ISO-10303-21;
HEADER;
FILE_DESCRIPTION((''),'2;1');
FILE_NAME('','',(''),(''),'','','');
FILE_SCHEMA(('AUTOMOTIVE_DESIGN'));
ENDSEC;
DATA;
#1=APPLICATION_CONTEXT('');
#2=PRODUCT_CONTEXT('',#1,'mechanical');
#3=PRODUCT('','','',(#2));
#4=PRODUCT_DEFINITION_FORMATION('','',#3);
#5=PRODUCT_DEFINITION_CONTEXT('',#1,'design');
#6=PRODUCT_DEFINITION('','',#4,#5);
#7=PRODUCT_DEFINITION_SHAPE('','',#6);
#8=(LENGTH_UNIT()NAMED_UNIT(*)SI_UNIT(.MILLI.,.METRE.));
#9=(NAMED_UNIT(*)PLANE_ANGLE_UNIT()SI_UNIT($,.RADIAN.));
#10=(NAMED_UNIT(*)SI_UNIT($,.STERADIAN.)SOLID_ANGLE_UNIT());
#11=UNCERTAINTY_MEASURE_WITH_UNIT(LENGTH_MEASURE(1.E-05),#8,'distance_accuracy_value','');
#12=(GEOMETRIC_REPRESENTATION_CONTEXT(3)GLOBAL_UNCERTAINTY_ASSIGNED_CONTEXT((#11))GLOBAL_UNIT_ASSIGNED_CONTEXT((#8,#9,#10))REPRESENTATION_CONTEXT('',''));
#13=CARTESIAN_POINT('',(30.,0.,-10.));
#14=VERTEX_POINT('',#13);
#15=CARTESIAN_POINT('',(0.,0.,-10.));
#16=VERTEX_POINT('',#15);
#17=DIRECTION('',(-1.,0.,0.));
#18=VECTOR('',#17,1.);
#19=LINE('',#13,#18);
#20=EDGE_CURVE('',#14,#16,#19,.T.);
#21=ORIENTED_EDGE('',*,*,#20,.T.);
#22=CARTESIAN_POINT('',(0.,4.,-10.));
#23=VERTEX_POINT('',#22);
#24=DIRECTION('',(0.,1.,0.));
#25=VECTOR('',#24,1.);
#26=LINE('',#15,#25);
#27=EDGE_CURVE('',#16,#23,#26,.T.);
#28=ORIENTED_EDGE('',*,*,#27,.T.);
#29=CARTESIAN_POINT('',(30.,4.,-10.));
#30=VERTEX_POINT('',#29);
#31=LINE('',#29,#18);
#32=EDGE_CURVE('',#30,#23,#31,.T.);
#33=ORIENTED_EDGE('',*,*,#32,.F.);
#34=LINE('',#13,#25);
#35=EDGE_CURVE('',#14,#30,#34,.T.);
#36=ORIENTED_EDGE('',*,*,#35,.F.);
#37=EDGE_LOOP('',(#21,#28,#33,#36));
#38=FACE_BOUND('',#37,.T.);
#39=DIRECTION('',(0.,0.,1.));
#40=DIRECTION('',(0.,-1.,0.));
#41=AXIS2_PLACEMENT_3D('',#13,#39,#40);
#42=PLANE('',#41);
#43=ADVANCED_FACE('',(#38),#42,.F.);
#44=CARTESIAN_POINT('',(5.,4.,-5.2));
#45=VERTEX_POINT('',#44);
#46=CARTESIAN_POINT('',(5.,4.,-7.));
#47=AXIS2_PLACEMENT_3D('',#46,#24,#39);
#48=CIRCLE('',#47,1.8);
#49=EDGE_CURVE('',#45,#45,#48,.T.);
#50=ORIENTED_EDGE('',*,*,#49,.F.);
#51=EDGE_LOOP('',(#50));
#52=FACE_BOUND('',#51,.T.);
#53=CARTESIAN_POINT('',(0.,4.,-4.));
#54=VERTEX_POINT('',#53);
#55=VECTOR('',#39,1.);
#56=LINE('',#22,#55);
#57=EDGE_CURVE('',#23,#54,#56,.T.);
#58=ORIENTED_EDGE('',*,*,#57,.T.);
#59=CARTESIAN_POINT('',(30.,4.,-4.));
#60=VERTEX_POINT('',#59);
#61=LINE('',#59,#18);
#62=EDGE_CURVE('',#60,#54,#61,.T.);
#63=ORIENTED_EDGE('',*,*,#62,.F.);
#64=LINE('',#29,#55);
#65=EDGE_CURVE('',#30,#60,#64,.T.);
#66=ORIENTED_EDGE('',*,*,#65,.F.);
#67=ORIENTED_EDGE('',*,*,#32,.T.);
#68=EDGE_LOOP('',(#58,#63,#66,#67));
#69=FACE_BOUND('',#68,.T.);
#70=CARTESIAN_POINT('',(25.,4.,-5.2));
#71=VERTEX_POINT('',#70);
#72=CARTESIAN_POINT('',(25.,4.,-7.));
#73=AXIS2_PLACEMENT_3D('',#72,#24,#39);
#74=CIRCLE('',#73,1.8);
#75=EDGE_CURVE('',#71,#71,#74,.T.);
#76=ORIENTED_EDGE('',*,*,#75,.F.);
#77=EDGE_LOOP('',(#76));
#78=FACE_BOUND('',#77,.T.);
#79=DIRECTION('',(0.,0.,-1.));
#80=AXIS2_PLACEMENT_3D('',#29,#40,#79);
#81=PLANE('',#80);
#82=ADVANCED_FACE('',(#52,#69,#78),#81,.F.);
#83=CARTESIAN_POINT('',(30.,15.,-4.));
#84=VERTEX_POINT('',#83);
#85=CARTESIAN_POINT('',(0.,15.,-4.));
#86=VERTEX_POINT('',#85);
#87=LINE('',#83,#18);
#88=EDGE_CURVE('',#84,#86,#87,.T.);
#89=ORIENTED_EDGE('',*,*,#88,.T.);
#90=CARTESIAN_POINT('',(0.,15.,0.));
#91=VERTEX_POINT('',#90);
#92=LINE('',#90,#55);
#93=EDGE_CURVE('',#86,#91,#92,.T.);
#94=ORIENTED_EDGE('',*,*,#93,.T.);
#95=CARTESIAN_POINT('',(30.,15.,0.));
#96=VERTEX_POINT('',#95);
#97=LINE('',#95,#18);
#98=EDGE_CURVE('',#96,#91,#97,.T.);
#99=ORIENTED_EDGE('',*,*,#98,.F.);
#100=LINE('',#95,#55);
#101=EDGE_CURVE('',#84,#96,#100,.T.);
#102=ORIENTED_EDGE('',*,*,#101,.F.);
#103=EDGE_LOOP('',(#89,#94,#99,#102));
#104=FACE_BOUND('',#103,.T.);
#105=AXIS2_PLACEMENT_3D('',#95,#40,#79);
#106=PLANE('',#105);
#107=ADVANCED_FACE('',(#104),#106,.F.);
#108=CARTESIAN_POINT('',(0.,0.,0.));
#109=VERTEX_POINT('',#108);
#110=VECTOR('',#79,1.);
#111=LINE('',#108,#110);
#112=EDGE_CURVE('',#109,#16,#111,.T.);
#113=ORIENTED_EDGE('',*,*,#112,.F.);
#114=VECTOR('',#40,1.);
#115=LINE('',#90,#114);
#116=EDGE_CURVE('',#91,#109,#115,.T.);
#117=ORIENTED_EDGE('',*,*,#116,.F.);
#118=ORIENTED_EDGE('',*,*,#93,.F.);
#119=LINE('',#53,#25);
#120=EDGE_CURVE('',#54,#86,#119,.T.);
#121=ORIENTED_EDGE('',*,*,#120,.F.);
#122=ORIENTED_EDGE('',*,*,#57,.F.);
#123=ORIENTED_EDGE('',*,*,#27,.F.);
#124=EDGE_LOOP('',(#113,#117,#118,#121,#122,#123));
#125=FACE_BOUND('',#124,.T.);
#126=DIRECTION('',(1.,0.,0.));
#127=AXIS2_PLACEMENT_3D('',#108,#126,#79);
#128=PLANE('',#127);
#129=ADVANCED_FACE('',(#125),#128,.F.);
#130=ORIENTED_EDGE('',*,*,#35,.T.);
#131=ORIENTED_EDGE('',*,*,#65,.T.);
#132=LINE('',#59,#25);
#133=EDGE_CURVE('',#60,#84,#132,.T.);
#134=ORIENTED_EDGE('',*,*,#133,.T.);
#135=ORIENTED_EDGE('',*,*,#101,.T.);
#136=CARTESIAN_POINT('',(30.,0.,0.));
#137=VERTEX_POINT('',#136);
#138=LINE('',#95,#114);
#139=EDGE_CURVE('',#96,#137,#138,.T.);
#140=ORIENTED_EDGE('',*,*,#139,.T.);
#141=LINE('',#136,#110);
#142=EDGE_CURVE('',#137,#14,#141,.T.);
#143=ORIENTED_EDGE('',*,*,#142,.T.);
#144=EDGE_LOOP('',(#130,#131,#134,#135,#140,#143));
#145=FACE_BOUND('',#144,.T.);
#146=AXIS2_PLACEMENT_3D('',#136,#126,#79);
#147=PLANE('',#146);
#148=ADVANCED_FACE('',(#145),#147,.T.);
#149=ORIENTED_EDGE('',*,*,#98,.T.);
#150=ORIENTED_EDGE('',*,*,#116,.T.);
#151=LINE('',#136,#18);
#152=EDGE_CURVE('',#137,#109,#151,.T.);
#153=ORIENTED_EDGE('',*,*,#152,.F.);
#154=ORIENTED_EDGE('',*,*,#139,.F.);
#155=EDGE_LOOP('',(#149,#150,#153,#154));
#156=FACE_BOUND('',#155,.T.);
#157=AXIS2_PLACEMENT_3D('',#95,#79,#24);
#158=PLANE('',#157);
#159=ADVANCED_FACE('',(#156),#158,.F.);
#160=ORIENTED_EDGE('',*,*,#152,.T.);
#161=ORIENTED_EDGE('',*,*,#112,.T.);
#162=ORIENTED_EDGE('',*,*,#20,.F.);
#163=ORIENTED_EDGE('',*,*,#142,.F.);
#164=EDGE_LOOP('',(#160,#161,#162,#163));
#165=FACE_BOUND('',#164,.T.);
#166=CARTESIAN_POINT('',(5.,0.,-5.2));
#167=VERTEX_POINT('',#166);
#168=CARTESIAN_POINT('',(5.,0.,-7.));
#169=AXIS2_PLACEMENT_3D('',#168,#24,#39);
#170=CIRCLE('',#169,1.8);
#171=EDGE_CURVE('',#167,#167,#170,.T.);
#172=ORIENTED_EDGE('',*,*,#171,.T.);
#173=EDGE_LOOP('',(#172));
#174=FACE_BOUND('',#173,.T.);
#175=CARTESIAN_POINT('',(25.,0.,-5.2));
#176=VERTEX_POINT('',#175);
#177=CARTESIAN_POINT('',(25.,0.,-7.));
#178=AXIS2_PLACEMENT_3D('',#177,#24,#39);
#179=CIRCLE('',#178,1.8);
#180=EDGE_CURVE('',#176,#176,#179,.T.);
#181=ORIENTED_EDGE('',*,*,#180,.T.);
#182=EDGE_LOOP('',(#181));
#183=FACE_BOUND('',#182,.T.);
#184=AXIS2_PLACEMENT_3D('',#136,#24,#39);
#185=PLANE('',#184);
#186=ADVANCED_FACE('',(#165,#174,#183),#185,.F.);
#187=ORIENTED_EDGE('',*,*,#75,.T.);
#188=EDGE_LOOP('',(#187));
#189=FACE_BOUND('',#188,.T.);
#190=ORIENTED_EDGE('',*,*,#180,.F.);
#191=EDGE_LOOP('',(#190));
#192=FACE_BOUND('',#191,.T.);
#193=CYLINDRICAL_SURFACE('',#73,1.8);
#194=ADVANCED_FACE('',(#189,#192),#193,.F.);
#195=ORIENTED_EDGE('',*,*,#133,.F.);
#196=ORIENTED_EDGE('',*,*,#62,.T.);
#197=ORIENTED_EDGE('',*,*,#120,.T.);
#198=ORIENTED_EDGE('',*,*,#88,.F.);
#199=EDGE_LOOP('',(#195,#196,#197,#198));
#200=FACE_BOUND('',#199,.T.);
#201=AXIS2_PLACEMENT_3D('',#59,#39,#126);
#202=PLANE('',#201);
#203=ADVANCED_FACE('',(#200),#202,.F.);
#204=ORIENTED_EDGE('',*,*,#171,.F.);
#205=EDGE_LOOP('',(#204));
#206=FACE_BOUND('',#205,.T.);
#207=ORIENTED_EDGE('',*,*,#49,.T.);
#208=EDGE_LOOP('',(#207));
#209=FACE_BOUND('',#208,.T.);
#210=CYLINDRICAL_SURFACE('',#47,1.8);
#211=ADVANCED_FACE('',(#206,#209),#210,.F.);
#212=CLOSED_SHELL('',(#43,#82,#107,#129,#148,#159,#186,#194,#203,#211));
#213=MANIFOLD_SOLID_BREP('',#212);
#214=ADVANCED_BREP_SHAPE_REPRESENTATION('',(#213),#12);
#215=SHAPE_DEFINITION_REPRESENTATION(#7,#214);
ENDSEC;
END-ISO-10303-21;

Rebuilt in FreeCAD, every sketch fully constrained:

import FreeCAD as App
import Part
import Sketcher
from FreeCAD import Vector

doc = App.newDocument("Part")
body = doc.addObject("PartDesign::Body", "Body")

sketch1 = body.newObject("Sketcher::SketchObject", "Sketch")
sketch1.AttachmentSupport = (doc.getObject("YZ_Plane"), [""])
sketch1.MapMode = "FlatFace"
sketch1.addGeometry([
    Part.LineSegment(Vector(15, 0, 0), Vector(0, 0, 0)),
    Part.LineSegment(Vector(0, 0, 0), Vector(0, -10, 0)),
    Part.LineSegment(Vector(0, -10, 0), Vector(4, -10, 0)),
    Part.LineSegment(Vector(4, -10, 0), Vector(4, -4, 0)),
    Part.LineSegment(Vector(4, -4, 0), Vector(15, -4, 0)),
    Part.LineSegment(Vector(15, -4, 0), Vector(15, 0, 0)),
], False)
sketch1.addConstraint([
    Sketcher.Constraint("Coincident", 0, 2, 1, 1),
    Sketcher.Constraint("Coincident", 1, 2, 2, 1),
    Sketcher.Constraint("Coincident", 2, 2, 3, 1),
    Sketcher.Constraint("Coincident", 3, 2, 4, 1),
    Sketcher.Constraint("Coincident", 4, 2, 5, 1),
    Sketcher.Constraint("Coincident", 5, 2, 0, 1),
    Sketcher.Constraint("Horizontal", 0),
    Sketcher.Constraint("Vertical", 1),
    Sketcher.Constraint("Horizontal", 2),
    Sketcher.Constraint("Vertical", 3),
    Sketcher.Constraint("Horizontal", 4),
    Sketcher.Constraint("Vertical", 5),
    Sketcher.Constraint("Coincident", 0, 2, -1, 1),
    Sketcher.Constraint("Equal", 2, 5),
    Sketcher.Constraint("DistanceX", 0, 2, 0, 1, 15.0),
    Sketcher.Constraint("DistanceX", 2, 1, 2, 2, 4.0),
    Sketcher.Constraint("DistanceY", 1, 2, 1, 1, 10.0),
])
pad1 = body.newObject("PartDesign::Pad", "Pad")
pad1.Profile = sketch1
pad1.Length = 30

sketch2 = body.newObject("Sketcher::SketchObject", "Sketch001")
sketch2.AttachmentSupport = (doc.getObject("XZ_Plane"), [""])
sketch2.MapMode = "FlatFace"
sketch2.AttachmentOffset = App.Placement(Vector(0, 0, -4), App.Rotation())
sketch2.addGeometry([
    Part.Circle(Vector(5, -7, 0), Vector(0, 0, 1), 1.8),
    Part.Circle(Vector(25, -7, 0), Vector(0, 0, 1), 1.8),
], False)
sketch2.addConstraint([
    Sketcher.Constraint("Equal", 0, 1),
    Sketcher.Constraint("Horizontal", 0, 3, 1, 3),
    Sketcher.Constraint("Diameter", 0, 3.6),
    Sketcher.Constraint("DistanceX", -1, 1, 0, 3, 5.0),
    Sketcher.Constraint("DistanceY", 0, 3, -1, 1, 7.0),
    Sketcher.Constraint("DistanceX", -1, 1, 1, 3, 25.0),
])
doc.recompute()
hole = body.newObject("PartDesign::Hole", "Hole")
hole.Profile = sketch2
hole.ThreadType = "None"
hole.Diameter = 3.6
hole.DepthType = "ThroughAll"
hole.Reversed = True

doc.recompute()
